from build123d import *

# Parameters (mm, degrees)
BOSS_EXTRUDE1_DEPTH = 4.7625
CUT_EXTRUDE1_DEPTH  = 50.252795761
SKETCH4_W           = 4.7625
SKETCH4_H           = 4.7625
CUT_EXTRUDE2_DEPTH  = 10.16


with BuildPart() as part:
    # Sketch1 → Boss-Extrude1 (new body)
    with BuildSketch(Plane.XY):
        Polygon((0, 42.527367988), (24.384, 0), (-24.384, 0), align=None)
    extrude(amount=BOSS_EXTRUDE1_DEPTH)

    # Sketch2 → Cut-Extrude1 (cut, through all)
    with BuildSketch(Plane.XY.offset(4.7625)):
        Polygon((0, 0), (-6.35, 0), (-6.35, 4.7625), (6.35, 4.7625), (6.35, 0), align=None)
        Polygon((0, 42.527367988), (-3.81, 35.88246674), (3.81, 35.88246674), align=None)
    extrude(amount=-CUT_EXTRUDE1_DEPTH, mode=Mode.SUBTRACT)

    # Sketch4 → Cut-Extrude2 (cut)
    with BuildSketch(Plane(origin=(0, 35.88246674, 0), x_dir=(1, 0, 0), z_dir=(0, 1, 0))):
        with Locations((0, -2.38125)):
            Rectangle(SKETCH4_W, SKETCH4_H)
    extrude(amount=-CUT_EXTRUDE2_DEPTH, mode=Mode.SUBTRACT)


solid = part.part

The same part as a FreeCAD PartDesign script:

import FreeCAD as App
import Part
import Sketcher
Q = App.Units.Quantity


def add_polygon(sketch, points):
    """Adds a closed chain of lines whose ends are joined by coincident constraints."""
    first, n = sketch.GeometryCount, len(points)
    for a, b in zip(points, points[1:] + points[:1]):
        sketch.addGeometry(Part.LineSegment(App.Vector(*a, 0), App.Vector(*b, 0)), False)
    for i in range(n):
        sketch.addConstraint(Sketcher.Constraint("Coincident", first + i, 2, first + (i + 1) % n, 1))

doc = App.newDocument("Part")
body = doc.addObject("PartDesign::Body", "Body")

sketch1 = doc.addObject("Sketcher::SketchObject", "Sketch")
body.addObject(sketch1)
sketch1.AttachmentSupport = (doc.XY_Plane, [""])
sketch1.MapMode = "FlatFace"
add_polygon(sketch1, [(24, 0), (0, 43), (-24, 0)])
sketch1.addConstraint(Sketcher.Constraint("Horizontal", 2))
sketch1.addConstraint(Sketcher.Constraint("Symmetric", 1, 2, 2, 2, -1, 1))
sketch1.addConstraint(Sketcher.Constraint("PointOnObject", 0, 2, -2))
sketch1.addConstraint(Sketcher.Constraint("DistanceX", 2, 1, 2, 2, Q("1.92 in")))
sketch1.addConstraint(Sketcher.Constraint("Distance", 0, Q("1.93 in")))
pad1 = doc.addObject("PartDesign::Pad", "Pad")
body.addObject(pad1)
pad1.Profile = sketch1
pad1.Length = Q("0.1875 in")

sketch2 = doc.addObject("Sketcher::SketchObject", "Sketch001")
body.addObject(sketch2)
sketch2.AttachmentSupport = (doc.XY_Plane, [""])
sketch2.MapMode = "FlatFace"
sketch2.AttachmentOffset = App.Placement(App.Vector(0, 0, 0.1875 * 25.4), App.Rotation())
add_polygon(sketch2, [(-6.3, 0), (6.3, 0), (6.3, 4.8), (-6.3, 4.8)])
add_polygon(sketch2, [(0, 42.5), (-3.8, 35.9), (3.8, 35.9)])
sketch2.addConstraint(Sketcher.Constraint("Horizontal", 0))
sketch2.addConstraint(Sketcher.Constraint("Vertical", 1))
sketch2.addConstraint(Sketcher.Constraint("Horizontal", 2))
sketch2.addConstraint(Sketcher.Constraint("Vertical", 3))
sketch2.addConstraint(Sketcher.Constraint("Horizontal", 5))
sketch2.addConstraint(Sketcher.Constraint("Symmetric", 0, 2, 3, 2, -1, 1))
sketch2.addConstraint(Sketcher.Constraint("PointOnObject", 6, 2, -2))
sketch2.addConstraint(Sketcher.Constraint("Equal", 4, 6))
sketch2.addConstraint(Sketcher.Constraint("DistanceX", 0, 1, 0, 2, Q("0.5 in")))
sketch2.addConstraint(Sketcher.Constraint("DistanceX", 5, 1, 5, 2, Q("0.3 in")))
sketch2.addConstraint(Sketcher.Constraint("DistanceY", 1, 1, 1, 2, Q("0.1875 in")))
sketch2.addConstraint(Sketcher.Constraint("DistanceY", 4, 2, 6, 2, 6.644901))
sketch2.addConstraint(Sketcher.Constraint("DistanceY", -1, 1, 4, 2, 35.882467))
pocket1 = doc.addObject("PartDesign::Pocket", "Pocket")
body.addObject(pocket1)
pocket1.Profile = sketch2
pocket1.Type = "ThroughAll"

sketch3 = doc.addObject("Sketcher::SketchObject", "Sketch002")
body.addObject(sketch3)
sketch3.AttachmentSupport = (doc.XZ_Plane, [""])
sketch3.MapMode = "FlatFace"
sketch3.AttachmentOffset = App.Placement(App.Vector(0, 0, -35.882467), App.Rotation())
add_polygon(sketch3, [(-2.4, 0), (-2.4, 4.8), (2.4, 4.8), (2.4, 0)])
sketch3.addConstraint(Sketcher.Constraint("Vertical", 0))
sketch3.addConstraint(Sketcher.Constraint("Horizontal", 1))
sketch3.addConstraint(Sketcher.Constraint("Vertical", 2))
sketch3.addConstraint(Sketcher.Constraint("Horizontal", 3))
sketch3.addConstraint(Sketcher.Constraint("Symmetric", 2, 2, 3, 2, -1, 1))
sketch3.addConstraint(Sketcher.Constraint("Equal", 3, 0))
sketch3.addConstraint(Sketcher.Constraint("DistanceX", 1, 1, 1, 2, Q("0.1875 in")))
pocket2 = doc.addObject("PartDesign::Pocket", "Pocket001")
body.addObject(pocket2)
pocket2.Profile = sketch3
pocket2.Length = Q("0.4 in")
pocket2.Reversed = True

doc.recompute()
